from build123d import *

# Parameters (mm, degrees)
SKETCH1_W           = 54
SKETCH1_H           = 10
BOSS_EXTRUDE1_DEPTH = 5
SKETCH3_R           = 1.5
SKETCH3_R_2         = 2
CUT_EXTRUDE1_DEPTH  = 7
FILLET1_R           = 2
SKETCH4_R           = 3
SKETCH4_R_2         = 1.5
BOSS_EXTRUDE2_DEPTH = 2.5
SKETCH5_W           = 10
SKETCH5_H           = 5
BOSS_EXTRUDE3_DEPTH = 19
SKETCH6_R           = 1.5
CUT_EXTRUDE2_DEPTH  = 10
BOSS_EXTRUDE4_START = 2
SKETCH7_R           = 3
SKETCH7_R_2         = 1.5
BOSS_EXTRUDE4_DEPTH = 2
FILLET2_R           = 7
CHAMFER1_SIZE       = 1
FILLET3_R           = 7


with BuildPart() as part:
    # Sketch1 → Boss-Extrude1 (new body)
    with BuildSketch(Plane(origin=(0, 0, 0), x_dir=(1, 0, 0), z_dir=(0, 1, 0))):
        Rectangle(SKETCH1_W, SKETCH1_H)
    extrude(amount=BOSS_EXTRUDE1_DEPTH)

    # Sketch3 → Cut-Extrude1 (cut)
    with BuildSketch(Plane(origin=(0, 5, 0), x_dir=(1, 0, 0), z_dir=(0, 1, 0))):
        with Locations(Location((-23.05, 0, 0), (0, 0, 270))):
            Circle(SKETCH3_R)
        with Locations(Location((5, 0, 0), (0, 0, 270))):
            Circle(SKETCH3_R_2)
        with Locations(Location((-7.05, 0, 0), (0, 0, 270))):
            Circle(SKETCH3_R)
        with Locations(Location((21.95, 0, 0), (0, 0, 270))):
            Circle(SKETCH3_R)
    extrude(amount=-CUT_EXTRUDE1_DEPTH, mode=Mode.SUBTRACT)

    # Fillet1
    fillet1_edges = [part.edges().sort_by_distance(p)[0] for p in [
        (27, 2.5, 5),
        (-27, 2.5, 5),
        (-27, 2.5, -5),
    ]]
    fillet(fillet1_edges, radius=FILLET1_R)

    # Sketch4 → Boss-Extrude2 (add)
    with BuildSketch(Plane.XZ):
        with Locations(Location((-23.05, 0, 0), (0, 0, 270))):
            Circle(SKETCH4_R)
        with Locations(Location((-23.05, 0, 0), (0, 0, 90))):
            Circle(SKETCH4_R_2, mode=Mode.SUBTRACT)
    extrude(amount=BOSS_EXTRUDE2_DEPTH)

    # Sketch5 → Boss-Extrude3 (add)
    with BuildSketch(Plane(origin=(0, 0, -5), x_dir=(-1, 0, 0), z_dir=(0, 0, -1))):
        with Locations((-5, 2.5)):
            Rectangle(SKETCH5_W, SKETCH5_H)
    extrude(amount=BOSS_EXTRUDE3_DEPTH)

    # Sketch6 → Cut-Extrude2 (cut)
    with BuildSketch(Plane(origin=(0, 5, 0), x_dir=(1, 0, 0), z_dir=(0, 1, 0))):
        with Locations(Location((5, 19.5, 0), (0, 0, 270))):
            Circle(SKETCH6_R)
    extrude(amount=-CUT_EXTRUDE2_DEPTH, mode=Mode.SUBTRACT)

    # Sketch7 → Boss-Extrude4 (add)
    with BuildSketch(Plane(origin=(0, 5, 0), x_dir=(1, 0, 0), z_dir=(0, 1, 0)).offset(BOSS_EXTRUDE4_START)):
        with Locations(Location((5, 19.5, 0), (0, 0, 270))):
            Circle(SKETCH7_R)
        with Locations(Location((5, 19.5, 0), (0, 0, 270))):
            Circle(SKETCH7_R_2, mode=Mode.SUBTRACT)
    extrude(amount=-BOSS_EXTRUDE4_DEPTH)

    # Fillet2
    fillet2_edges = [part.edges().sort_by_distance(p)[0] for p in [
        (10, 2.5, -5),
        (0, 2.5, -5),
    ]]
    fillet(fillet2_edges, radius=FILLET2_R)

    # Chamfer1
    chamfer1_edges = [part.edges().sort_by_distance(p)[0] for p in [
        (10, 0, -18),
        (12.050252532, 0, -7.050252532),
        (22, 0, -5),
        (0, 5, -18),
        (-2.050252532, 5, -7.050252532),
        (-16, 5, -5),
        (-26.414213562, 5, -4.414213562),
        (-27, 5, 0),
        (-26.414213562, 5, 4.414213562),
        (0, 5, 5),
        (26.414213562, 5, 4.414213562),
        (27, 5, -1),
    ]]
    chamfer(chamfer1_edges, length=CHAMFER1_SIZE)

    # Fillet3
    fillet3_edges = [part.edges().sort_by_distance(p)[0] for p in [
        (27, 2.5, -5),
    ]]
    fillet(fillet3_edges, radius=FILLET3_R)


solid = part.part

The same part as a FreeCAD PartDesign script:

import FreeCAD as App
import Part
import Sketcher
from FreeCAD import Vector
Q = App.Units.Quantity


def edges_at(feature, points):
    """Names of the edges that pass closest to the given points."""
    edges = feature.Shape.Edges
    near = lambda p: min(range(len(edges)), key=lambda i: edges[i].distToShape(Part.Vertex(*p))[0])
    return sorted({f"Edge{near(p) + 1}" for p in points})

doc = App.newDocument("Part")
body = doc.addObject("PartDesign::Body", "Body")

# Sketch on XZ plane
sketch1 = body.newObject("Sketcher::SketchObject", "Sketch")
sketch1.AttachmentSupport = (doc.getObject("XZ_Plane"), [""])
sketch1.MapMode = "FlatFace"
sketch1.addGeometry([
    Part.LineSegment(Vector(-27, -5, 0), Vector(-27, 5, 0)),
    Part.LineSegment(Vector(-27, 5, 0), Vector(27, 5, 0)),
    Part.LineSegment(Vector(27, 5, 0), Vector(27, -5, 0)),
    Part.LineSegment(Vector(27, -5, 0), Vector(-27, -5, 0)),
], False)
sketch1.addConstraint([
    Sketcher.Constraint("Coincident", 0, 2, 1, 1),
    Sketcher.Constraint("Coincident", 1, 2, 2, 1),
    Sketcher.Constraint("Coincident", 2, 2, 3, 1),
    Sketcher.Constraint("Coincident", 3, 2, 0, 1),
    Sketcher.Constraint("Vertical", 0),
    Sketcher.Constraint("Horizontal", 1),
    Sketcher.Constraint("Vertical", 2),
    Sketcher.Constraint("Horizontal", 3),
    Sketcher.Constraint("Symmetric", 0, 2, 2, 2, -1, 1),
    Sketcher.Constraint("DistanceX", 1, 1, 1, 2, Q("54 mm")),
    Sketcher.Constraint("DistanceY", 0, 1, 0, 2, Q("10 mm")),
])
pad1 = body.newObject("PartDesign::Pad", "Pad")
pad1.Profile = sketch1
pad1.Length = 5
pad1.Reversed = True

# Sketch on XZ plane
sketch2 = body.newObject("Sketcher::SketchObject", "Sketch001")
sketch2.AttachmentSupport = (doc.getObject("XZ_Plane"), [""])
sketch2.MapMode = "FlatFace"
sketch2.AttachmentOffset = App.Placement(Vector(0, 0, -5), App.Rotation())
sketch2.addGeometry([
    Part.Circle(Vector(-23.05, 0, 0), Vector(0, 0, 1), 1.5),
    Part.Circle(Vector(5, 0, 0), Vector(0, 0, 1), 2),
    Part.Circle(Vector(-7.05, 0, 0), Vector(0, 0, 1), 1.5),
    Part.Circle(Vector(21.95, 0, 0), Vector(0, 0, 1), 1.5),
], False)
sketch2.addConstraint([
    Sketcher.Constraint("Equal", 0, 2),
    Sketcher.Constraint("Equal", 2, 3),
    Sketcher.Constraint("PointOnObject", 0, 3, -1),
    Sketcher.Constraint("PointOnObject", 1, 3, -1),
    Sketcher.Constraint("PointOnObject", 2, 3, -1),
    Sketcher.Constraint("PointOnObject", 3, 3, -1),
    Sketcher.Constraint("Diameter", 0, Q("3 mm")),
    Sketcher.Constraint("Diameter", 1, Q("4 mm")),
    Sketcher.Constraint("DistanceX", -1, 1, 1, 3, Q("5 mm")),
    Sketcher.Constraint("DistanceX", 0, 3, 2, 3, Q("16 mm")),
    Sketcher.Constraint("DistanceX", 2, 3, 3, 3, Q("29 mm")),
    Sketcher.Constraint("DistanceX", 0, 3, -1, 1, Q("23.05 mm")),
])
pocket1 = body.newObject("PartDesign::Pocket", "Pocket")
pocket1.Profile = sketch2
pocket1.Length = 7
pocket1.Reversed = True
doc.recompute()

fillet = body.newObject("PartDesign::Fillet", "Fillet")
fillet.Base = (pocket1, edges_at(pocket1, [(27, 2.5, 5), (-27, 2.5, 5), (-27, 2.5, -5)]))
fillet.Radius = 2

# Sketch on XZ plane
sketch3 = body.newObject("Sketcher::SketchObject", "Sketch002")
sketch3.AttachmentSupport = (doc.getObject("XZ_Plane"), [""])
sketch3.MapMode = "FlatFace"
sketch3.addGeometry([
    Part.Circle(Vector(-23.05, 0, 0), Vector(0, 0, 1), 3),
    Part.Circle(Vector(-23.05, 0, 0), Vector(0, 0, 1), 1.5),
], False)
sketch3.addConstraint([
    Sketcher.Constraint("Coincident", 1, 3, 0, 3),
    Sketcher.Constraint("PointOnObject", 0, 3, -1),
    Sketcher.Constraint("Diameter", 0, Q("6 mm")),
    Sketcher.Constraint("Diameter", 1, Q("3 mm")),
    Sketcher.Constraint("DistanceX", 0, 3, -1, 1, Q("23.05 mm")),
])
pad2 = body.newObject("PartDesign::Pad", "Pad001")
pad2.Profile = sketch3
pad2.Length = 2.5

# Sketch on XY plane
sketch4 = body.newObject("Sketcher::SketchObject", "Sketch003")
sketch4.AttachmentSupport = (doc.getObject("XY_Plane"), [""])
sketch4.MapMode = "FlatFace"
sketch4.AttachmentOffset = App.Placement(Vector(0, 0, -5), App.Rotation())
sketch4.addGeometry([
    Part.LineSegment(Vector(10, 5, 0), Vector(10, 0, 0)),
    Part.LineSegment(Vector(10, 0, 0), Vector(0, 0, 0)),
    Part.LineSegment(Vector(0, 0, 0), Vector(0, 5, 0)),
    Part.LineSegment(Vector(0, 5, 0), Vector(10, 5, 0)),
], False)
sketch4.addConstraint([
    Sketcher.Constraint("Coincident", 0, 2, 1, 1),
    Sketcher.Constraint("Coincident", 1, 2, 2, 1),
    Sketcher.Constraint("Coincident", 2, 2, 3, 1),
    Sketcher.Constraint("Coincident", 3, 2, 0, 1),
    Sketcher.Constraint("Vertical", 0),
    Sketcher.Constraint("Horizontal", 1),
    Sketcher.Constraint("Vertical", 2),
    Sketcher.Constraint("Horizontal", 3),
    Sketcher.Constraint("Coincident", 1, 2, -1, 1),
    Sketcher.Constraint("DistanceX", 1, 2, 1, 1, Q("10 mm")),
    Sketcher.Constraint("DistanceY", 0, 2, 0, 1, Q("5 mm")),
])
pad3 = body.newObject("PartDesign::Pad", "Pad002")
pad3.Profile = sketch4
pad3.Length = 19
pad3.Reversed = True

# Sketch on XZ plane
sketch5 = body.newObject("Sketcher::SketchObject", "Sketch004")
sketch5.AttachmentSupport = (doc.getObject("XZ_Plane"), [""])
sketch5.MapMode = "FlatFace"
sketch5.AttachmentOffset = App.Placement(Vector(0, 0, -5), App.Rotation())
sketch5.addGeometry(Part.Circle(Vector(5, -19.5, 0), Vector(0, 0, 1), 1.5), False)
sketch5.addConstraint([
    Sketcher.Constraint("Diameter", 0, Q("3 mm")),
    Sketcher.Constraint("DistanceX", -1, 1, 0, 3, Q("5 mm")),
    Sketcher.Constraint("DistanceY", 0, 3, -1, 1, Q("19.5 mm")),
])
pocket2 = body.newObject("PartDesign::Pocket", "Pocket001")
pocket2.Profile = sketch5
pocket2.Length = 10
pocket2.Reversed = True

# Sketch on XZ plane
sketch6 = body.newObject("Sketcher::SketchObject", "Sketch005")
sketch6.AttachmentSupport = (doc.getObject("XZ_Plane"), [""])
sketch6.MapMode = "FlatFace"
sketch6.AttachmentOffset = App.Placement(Vector(0, 0, -7), App.Rotation())
sketch6.addGeometry([
    Part.Circle(Vector(5, -19.5, 0), Vector(0, 0, 1), 3),
    Part.Circle(Vector(5, -19.5, 0), Vector(0, 0, 1), 1.5),
], False)
sketch6.addConstraint([
    Sketcher.Constraint("Coincident", 1, 3, 0, 3),
    Sketcher.Constraint("Diameter", 0, Q("6 mm")),
    Sketcher.Constraint("Diameter", 1, Q("3 mm")),
    Sketcher.Constraint("DistanceX", -1, 1, 0, 3, Q("5 mm")),
    Sketcher.Constraint("DistanceY", 0, 3, -1, 1, Q("19.5 mm")),
])
pad4 = body.newObject("PartDesign::Pad", "Pad003")
pad4.Profile = sketch6
pad4.Length = 2
doc.recompute()

fillet2 = body.newObject("PartDesign::Fillet", "Fillet001")
fillet2.Base = (pad4, edges_at(pad4, [(10, 2.5, -5), (0, 2.5, -5)]))
fillet2.Radius = 7
doc.recompute()

chamfer = body.newObject("PartDesign::Chamfer", "Chamfer")
chamfer.Base = (fillet2, edges_at(fillet2, [
    (10, 0, -18),
    (12.05, 0, -7.05),
    (22, 0, -5),
    (0, 5, -18),
    (-2.05, 5, -7.05),
    (-16, 5, -5),
    (-26.414, 5, -4.414),
    (-27, 5, 0),
    (-26.414, 5, 4.414),
    (0, 5, 5),
    (26.414, 5, 4.414),
    (27, 5, -1),
]))
chamfer.Size = 1
doc.recompute()

fillet3 = body.newObject("PartDesign::Fillet", "Fillet002")
fillet3.Base = (chamfer, edges_at(chamfer, [(27, 2.5, -5)]))
fillet3.Radius = 7

doc.recompute()
